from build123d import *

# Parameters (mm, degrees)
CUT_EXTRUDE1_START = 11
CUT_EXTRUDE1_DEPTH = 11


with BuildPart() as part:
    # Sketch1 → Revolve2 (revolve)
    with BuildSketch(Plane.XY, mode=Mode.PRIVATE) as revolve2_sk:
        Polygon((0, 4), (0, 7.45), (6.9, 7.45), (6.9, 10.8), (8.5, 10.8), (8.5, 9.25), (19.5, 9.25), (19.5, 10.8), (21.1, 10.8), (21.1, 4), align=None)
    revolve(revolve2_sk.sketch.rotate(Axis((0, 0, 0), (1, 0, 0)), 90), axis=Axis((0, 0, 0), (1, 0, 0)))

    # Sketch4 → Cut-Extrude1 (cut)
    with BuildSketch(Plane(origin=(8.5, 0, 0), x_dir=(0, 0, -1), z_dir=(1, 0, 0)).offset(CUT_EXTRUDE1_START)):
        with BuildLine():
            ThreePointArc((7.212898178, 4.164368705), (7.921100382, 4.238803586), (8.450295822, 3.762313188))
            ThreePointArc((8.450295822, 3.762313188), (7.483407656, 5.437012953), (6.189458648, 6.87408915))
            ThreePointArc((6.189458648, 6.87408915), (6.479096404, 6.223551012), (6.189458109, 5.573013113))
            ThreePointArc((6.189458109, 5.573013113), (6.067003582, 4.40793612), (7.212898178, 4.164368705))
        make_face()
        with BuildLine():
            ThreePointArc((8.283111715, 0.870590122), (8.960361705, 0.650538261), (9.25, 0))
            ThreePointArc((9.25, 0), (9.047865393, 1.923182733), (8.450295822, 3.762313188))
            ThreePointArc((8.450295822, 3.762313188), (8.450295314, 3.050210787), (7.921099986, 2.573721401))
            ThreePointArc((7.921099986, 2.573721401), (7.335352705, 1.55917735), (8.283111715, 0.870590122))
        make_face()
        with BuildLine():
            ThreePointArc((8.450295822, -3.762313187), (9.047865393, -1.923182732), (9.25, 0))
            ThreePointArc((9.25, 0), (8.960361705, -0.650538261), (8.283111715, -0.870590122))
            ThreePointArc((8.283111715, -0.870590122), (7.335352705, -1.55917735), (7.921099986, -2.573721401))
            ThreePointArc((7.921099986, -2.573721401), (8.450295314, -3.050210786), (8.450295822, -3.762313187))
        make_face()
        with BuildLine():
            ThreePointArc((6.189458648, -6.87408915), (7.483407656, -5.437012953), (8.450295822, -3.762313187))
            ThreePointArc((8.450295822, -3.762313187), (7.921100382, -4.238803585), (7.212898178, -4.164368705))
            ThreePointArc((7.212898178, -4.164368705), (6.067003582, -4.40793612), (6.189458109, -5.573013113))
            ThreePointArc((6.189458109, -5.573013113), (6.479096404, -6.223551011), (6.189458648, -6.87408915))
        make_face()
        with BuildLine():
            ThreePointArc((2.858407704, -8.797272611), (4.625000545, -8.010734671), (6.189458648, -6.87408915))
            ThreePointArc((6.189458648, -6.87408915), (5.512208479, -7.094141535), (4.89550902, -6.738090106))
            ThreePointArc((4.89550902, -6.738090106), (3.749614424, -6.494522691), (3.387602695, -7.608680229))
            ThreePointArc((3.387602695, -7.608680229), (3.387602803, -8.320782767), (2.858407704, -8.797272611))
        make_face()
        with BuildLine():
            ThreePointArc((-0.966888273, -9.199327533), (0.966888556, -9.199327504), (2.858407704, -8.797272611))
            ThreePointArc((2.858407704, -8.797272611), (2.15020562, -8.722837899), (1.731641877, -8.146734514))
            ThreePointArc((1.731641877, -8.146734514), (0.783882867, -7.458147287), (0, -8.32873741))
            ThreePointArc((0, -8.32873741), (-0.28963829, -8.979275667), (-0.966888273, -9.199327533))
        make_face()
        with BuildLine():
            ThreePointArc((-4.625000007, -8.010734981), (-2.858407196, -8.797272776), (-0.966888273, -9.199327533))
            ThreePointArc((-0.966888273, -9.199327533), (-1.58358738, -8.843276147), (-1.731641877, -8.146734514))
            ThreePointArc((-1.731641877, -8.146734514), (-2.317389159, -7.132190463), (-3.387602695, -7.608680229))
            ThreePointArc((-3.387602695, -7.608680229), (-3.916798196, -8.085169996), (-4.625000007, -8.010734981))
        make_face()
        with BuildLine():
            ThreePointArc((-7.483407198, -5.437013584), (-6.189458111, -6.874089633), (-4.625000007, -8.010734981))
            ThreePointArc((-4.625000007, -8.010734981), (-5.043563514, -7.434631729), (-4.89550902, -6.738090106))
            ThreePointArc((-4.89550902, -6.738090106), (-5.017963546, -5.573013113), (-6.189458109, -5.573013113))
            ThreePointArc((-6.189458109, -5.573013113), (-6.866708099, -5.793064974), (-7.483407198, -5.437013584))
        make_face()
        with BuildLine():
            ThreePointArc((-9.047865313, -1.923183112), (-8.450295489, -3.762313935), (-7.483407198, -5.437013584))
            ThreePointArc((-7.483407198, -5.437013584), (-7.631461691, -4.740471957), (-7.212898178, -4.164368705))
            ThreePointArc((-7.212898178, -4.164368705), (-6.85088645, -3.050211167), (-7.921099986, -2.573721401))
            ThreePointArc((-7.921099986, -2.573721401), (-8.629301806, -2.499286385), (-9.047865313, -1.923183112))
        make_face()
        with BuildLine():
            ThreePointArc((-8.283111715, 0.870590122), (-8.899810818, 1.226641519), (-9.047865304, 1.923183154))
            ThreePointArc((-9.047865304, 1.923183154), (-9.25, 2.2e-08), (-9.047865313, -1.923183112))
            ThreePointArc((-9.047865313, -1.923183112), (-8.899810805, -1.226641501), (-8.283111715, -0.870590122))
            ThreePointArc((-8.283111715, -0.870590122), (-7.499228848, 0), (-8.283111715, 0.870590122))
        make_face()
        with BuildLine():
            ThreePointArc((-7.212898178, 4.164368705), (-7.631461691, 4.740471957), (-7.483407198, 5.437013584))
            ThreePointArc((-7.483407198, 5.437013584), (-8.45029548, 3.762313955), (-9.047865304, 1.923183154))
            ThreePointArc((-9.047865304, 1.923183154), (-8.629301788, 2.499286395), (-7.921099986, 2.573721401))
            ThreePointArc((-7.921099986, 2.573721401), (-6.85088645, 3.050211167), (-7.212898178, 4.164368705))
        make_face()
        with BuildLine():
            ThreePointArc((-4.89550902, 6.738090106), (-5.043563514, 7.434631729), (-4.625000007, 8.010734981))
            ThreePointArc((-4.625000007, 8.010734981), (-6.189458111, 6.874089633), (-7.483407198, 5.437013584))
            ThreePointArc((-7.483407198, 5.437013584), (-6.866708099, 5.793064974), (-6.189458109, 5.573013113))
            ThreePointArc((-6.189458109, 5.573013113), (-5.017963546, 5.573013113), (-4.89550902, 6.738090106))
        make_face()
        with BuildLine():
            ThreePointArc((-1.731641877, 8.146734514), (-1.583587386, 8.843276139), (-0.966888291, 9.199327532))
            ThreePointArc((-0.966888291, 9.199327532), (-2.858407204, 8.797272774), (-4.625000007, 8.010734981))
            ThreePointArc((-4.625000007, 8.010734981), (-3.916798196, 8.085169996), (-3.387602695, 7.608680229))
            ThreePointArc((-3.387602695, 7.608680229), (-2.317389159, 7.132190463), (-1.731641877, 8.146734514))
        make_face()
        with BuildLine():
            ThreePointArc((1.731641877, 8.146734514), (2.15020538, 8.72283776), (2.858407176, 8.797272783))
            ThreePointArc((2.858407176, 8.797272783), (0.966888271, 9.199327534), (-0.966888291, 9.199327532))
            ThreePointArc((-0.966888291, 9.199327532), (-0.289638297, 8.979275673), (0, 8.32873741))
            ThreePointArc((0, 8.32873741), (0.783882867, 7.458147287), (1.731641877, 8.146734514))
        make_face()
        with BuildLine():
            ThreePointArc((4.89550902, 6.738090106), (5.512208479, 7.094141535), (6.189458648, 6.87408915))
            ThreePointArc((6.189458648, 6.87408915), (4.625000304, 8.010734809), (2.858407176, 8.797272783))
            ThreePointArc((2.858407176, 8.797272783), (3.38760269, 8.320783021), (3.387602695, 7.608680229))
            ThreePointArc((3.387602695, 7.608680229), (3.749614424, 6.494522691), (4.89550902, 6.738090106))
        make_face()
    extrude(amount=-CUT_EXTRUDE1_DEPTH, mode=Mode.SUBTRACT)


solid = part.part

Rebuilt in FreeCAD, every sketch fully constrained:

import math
import FreeCAD as App
import Part
import Sketcher

V = App.Vector
Q = App.Units.Quantity


def add_polygon(sketch, points):
    """Adds a closed chain of lines whose ends are joined by coincident constraints."""
    first, n = sketch.GeometryCount, len(points)
    for a, b in zip(points, points[1:] + points[:1]):
        sketch.addGeometry(Part.LineSegment(App.Vector(*a, 0), App.Vector(*b, 0)), False)
    for i in range(n):
        sketch.addConstraint(Sketcher.Constraint("Coincident", first + i, 2, first + (i + 1) % n, 1))

doc = App.newDocument("Part")
body = doc.addObject("PartDesign::Body", "Body")

# Sketch on XY plane
sketch1 = doc.addObject("Sketcher::SketchObject", "Sketch")
body.addObject(sketch1)
sketch1.AttachmentSupport = (doc.XY_Plane, [""])
sketch1.MapMode = "FlatFace"
add_polygon(sketch1, [(0, 7.45), (0, 4), (21.1, 4), (21.1, 10.8), (19.5, 10.8), (19.5, 9.25), (8.5, 9.25), (8.5, 10.8), (6.9, 10.8), (6.9, 7.45)])  # lines 0-9
sketch1.addConstraint([
    Sketcher.Constraint("Vertical", 0),
    Sketcher.Constraint("Horizontal", 1),
    Sketcher.Constraint("Vertical", 2),
    Sketcher.Constraint("Horizontal", 3),
    Sketcher.Constraint("Vertical", 4),
    Sketcher.Constraint("Horizontal", 5),
    Sketcher.Constraint("Vertical", 6),
    Sketcher.Constraint("Horizontal", 7),
    Sketcher.Constraint("Vertical", 8),
    Sketcher.Constraint("Horizontal", 9),
    Sketcher.Constraint("PointOnObject", 0, 2, -2),
    Sketcher.Constraint("Horizontal", 3, 2, 6, 2),
    Sketcher.Constraint("Equal", 3, 7),
    Sketcher.Constraint("DistanceX", 5, 2, 5, 1, Q("11 mm")),
    Sketcher.Constraint("DistanceX", 1, 1, 1, 2, Q("21.1 mm")),
    Sketcher.Constraint("DistanceX", 3, 2, 3, 1, Q("1.6 mm")),
    Sketcher.Constraint("DistanceY", 2, 1, 2, 2, Q("6.8 mm")),
    Sketcher.Constraint("DistanceY", -1, 1, 0, 2, Q("4 mm")),
    Sketcher.Constraint("DistanceY", 0, 2, 0, 1, Q("3.45 mm")),
    Sketcher.Constraint("DistanceY", 4, 2, 4, 1, Q("1.55 mm")),
])
revolution = doc.addObject("PartDesign::Revolution", "Revolution")
body.addObject(revolution)
revolution.Profile = sketch1
revolution.ReferenceAxis = (sketch1, ["H_Axis"])
revolution.Angle = 360

# Sketch on YZ plane
sketch2 = doc.addObject("Sketcher::SketchObject", "Sketch001")
body.addObject(sketch2)
sketch2.AttachmentSupport = (doc.YZ_Plane, [""])
sketch2.MapMode = "FlatFace"
sketch2.AttachmentOffset = App.Placement(V(0, 0, 19.5), App.Rotation())
sketch2.addGeometry([
    Part.ArcOfCircle(Part.Circle(V(3.406263, -7.650591, 0), V(0, 0, 1), 0.875386), math.radians(-66.000055), math.radians(30)),  # 0
    Part.ArcOfCircle(Part.Circle(V(0, 0, 0), V(0, 0, 1), 9.25), math.radians(-66.000005), math.radians(-42.000005)),  # 1
    Part.ArcOfCircle(Part.Circle(V(6.223551, -5.603711, 0), V(0, 0, 1), 0.875386), math.radians(-138), math.radians(-42.000047)),  # 2
    Part.ArcOfCircle(Part.Circle(V(4.922475, -6.775205, 0), V(0, 0, 1), 0.875386), math.radians(42), math.radians(210)),  # 3
    Part.ArcOfCircle(Part.Circle(V(0, -8.374614, 0), V(0, 0, 1), 0.875386), math.radians(-90), math.radians(6)),  # 4
    Part.ArcOfCircle(Part.Circle(V(0, 0, 0), V(0, 0, 1), 9.25), math.radians(-90), math.radians(-66.000005)),  # 5
    Part.ArcOfCircle(Part.Circle(V(3.406263, -7.650591, 0), V(0, 0, 1), 0.875386), math.radians(-162), math.radians(-66.000055)),  # 6
    Part.ArcOfCircle(Part.Circle(V(1.74118, -8.191609, 0), V(0, 0, 1), 0.875386), math.radians(18), math.radians(186)),  # 7
    Part.ArcOfCircle(Part.Circle(V(0, 0, 0), V(0, 0, 1), 9.25), math.radians(-113.999995), math.radians(-90)),  # 8
    Part.ArcOfCircle(Part.Circle(V(0, -8.374614, 0), V(0, 0, 1), 0.875386), math.radians(174), math.radians(270)),  # 9
    Part.ArcOfCircle(Part.Circle(V(-1.74118, -8.191609, 0), V(0, 0, 1), 0.875386), math.radians(-6), math.radians(162)),  # 10
    Part.ArcOfCircle(Part.Circle(V(-3.406263, -7.650591, 0), V(0, 0, 1), 0.875386), math.radians(-113.999946), math.radians(-18)),  # 11
    Part.ArcOfCircle(Part.Circle(V(0, 0, 0), V(0, 0, 1), 9.25), math.radians(-137.999996), math.radians(-113.999995)),  # 12
    Part.ArcOfCircle(Part.Circle(V(-3.406263, -7.650591, 0), V(0, 0, 1), 0.875386), math.radians(150), math.radians(246.000054)),  # 13
    Part.ArcOfCircle(Part.Circle(V(-4.922475, -6.775205, 0), V(0, 0, 1), 0.875386), math.radians(-30), math.radians(138)),  # 14
    Part.ArcOfCircle(Part.Circle(V(-6.223551, -5.603711, 0), V(0, 0, 1), 0.875386), math.radians(-137.999953), math.radians(-42)),  # 15
    Part.ArcOfCircle(Part.Circle(V(0, 0, 0), V(0, 0, 1), 9.25), math.radians(-161.999997), math.radians(-137.999995)),  # 16
    Part.ArcOfCircle(Part.Circle(V(-6.223551, -5.603711, 0), V(0, 0, 1), 0.875386), math.radians(126), math.radians(222.000048)),  # 17
    Part.ArcOfCircle(Part.Circle(V(-7.252629, -4.187307, 0), V(0, 0, 1), 0.875386), math.radians(-54), math.radians(114)),  # 18
    Part.ArcOfCircle(Part.Circle(V(-7.964732, -2.587898, 0), V(0, 0, 1), 0.875386), math.radians(-161.999965), math.radians(-66)),  # 19
    Part.ArcOfCircle(Part.Circle(V(0, 0, 0), V(0, 0, 1), 9.25), math.radians(174), math.radians(198.000003)),  # 20
    Part.ArcOfCircle(Part.Circle(V(-7.964732, -2.587898, 0), V(0, 0, 1), 0.875386), math.radians(102), math.radians(198.000035)),  # 21
    Part.ArcOfCircle(Part.Circle(V(-8.328737, -0.875386, 0), V(0, 0, 1), 0.875386), math.radians(-78), math.radians(90)),  # 22
    Part.ArcOfCircle(Part.Circle(V(-8.328737, 0.875386, 0), V(0, 0, 1), 0.875386), math.radians(174.000001), math.radians(270)),  # 23
    Part.ArcOfCircle(Part.Circle(V(0, 0, 0), V(0, 0, 1), 9.25), math.radians(150), math.radians(174)),  # 24
    Part.ArcOfCircle(Part.Circle(V(-8.328737, 0.875386, 0), V(0, 0, 1), 0.875386), math.radians(78), math.radians(174.000001)),  # 25
    Part.ArcOfCircle(Part.Circle(V(-7.964732, 2.587898, 0), V(0, 0, 1), 0.875386), math.radians(-102), math.radians(66)),  # 26
    Part.ArcOfCircle(Part.Circle(V(-7.252629, 4.187307, 0), V(0, 0, 1), 0.875386), math.radians(149.999999), math.radians(246)),  # 27
    Part.ArcOfCircle(Part.Circle(V(0, 0, 0), V(0, 0, 1), 9.25), math.radians(126), math.radians(150)),  # 28
    Part.ArcOfCircle(Part.Circle(V(-7.252629, 4.187307, 0), V(0, 0, 1), 0.875386), math.radians(54), math.radians(149.999999)),  # 29
    Part.ArcOfCircle(Part.Circle(V(-6.223551, 5.603711, 0), V(0, 0, 1), 0.875386), math.radians(-126), math.radians(42)),  # 30
    Part.ArcOfCircle(Part.Circle(V(-4.922475, 6.775205, 0), V(0, 0, 1), 0.875386), math.radians(126), math.radians(222)),  # 31
    Part.ArcOfCircle(Part.Circle(V(0, 0, 0), V(0, 0, 1), 9.25), math.radians(102), math.radians(126)),  # 32
    Part.ArcOfCircle(Part.Circle(V(-4.922475, 6.775205, 0), V(0, 0, 1), 0.875386), math.radians(30), math.radians(126)),  # 33
    Part.ArcOfCircle(Part.Circle(V(-3.406263, 7.650591, 0), V(0, 0, 1), 0.875386), math.radians(-150), math.radians(18)),  # 34
    Part.ArcOfCircle(Part.Circle(V(-1.74118, 8.191609, 0), V(0, 0, 1), 0.875386), math.radians(101.999998), math.radians(198)),  # 35
    Part.ArcOfCircle(Part.Circle(V(1.74118, 8.191609, 0), V(0, 0, 1), 0.875386), math.radians(77.999999), math.radians(174)),  # 36
    Part.ArcOfCircle(Part.Circle(V(0, 0, 0), V(0, 0, 1), 9.25), math.radians(78), math.radians(102)),  # 37
    Part.ArcOfCircle(Part.Circle(V(-1.74118, 8.191609, 0), V(0, 0, 1), 0.875386), math.radians(6), math.radians(101.999998)),  # 38
    Part.ArcOfCircle(Part.Circle(V(0, 8.374614, 0), V(0, 0, 1), 0.875386), math.radians(-174), math.radians(-6)),  # 39
    Part.ArcOfCircle(Part.Circle(V(4.922475, 6.775205, 0), V(0, 0, 1), 0.875386), math.radians(54), math.radians(150)),  # 40
    Part.ArcOfCircle(Part.Circle(V(0, 0, 0), V(0, 0, 1), 9.25), math.radians(54), math.radians(78)),  # 41
    Part.ArcOfCircle(Part.Circle(V(1.74118, 8.191609, 0), V(0, 0, 1), 0.875386), math.radians(-18), math.radians(77.999999)),  # 42
    Part.ArcOfCircle(Part.Circle(V(3.406263, 7.650591, 0), V(0, 0, 1), 0.875386), math.radians(162), math.radians(330)),  # 43
    Part.ArcOfCircle(Part.Circle(V(7.252629, 4.187307, 0), V(0, 0, 1), 0.875386), math.radians(30.000001), math.radians(126)),  # 44
    Part.ArcOfCircle(Part.Circle(V(0, 0, 0), V(0, 0, 1), 9.25), math.radians(30), math.radians(54)),  # 45
    Part.ArcOfCircle(Part.Circle(V(4.922475, 6.775205, 0), V(0, 0, 1), 0.875386), math.radians(-42), math.radians(54)),  # 46
    Part.ArcOfCircle(Part.Circle(V(6.223551, 5.603711, 0), V(0, 0, 1), 0.875386), math.radians(138), math.radians(306)),  # 47
    Part.ArcOfCircle(Part.Circle(V(8.328737, 0.875386, 0), V(0, 0, 1), 0.875386), math.radians(6), math.radians(102)),  # 48
    Part.ArcOfCircle(Part.Circle(V(0, 0, 0), V(0, 0, 1), 9.25), math.radians(6), math.radians(30)),  # 49
    Part.ArcOfCircle(Part.Circle(V(7.252629, 4.187307, 0), V(0, 0, 1), 0.875386), math.radians(-66), math.radians(30.000001)),  # 50
    Part.ArcOfCircle(Part.Circle(V(7.964732, 2.587898, 0), V(0, 0, 1), 0.875386), math.radians(114), math.radians(282)),  # 51
    Part.ArcOfCircle(Part.Circle(V(7.964732, -2.587898, 0), V(0, 0, 1), 0.875386), math.radians(-17.999998), math.radians(78)),  # 52
    Part.ArcOfCircle(Part.Circle(V(0, 0, 0), V(0, 0, 1), 9.25), math.radians(-18), math.radians(6)),  # 53
    Part.ArcOfCircle(Part.Circle(V(8.328737, 0.875386, 0), V(0, 0, 1), 0.875386), math.radians(-90), math.radians(6)),  # 54
    Part.ArcOfCircle(Part.Circle(V(8.328737, -0.875386, 0), V(0, 0, 1), 0.875386), math.radians(90), math.radians(258)),  # 55
    Part.ArcOfCircle(Part.Circle(V(6.223551, -5.603711, 0), V(0, 0, 1), 0.875386), math.radians(-42.000048), math.radians(54)),  # 56
    Part.ArcOfCircle(Part.Circle(V(0, 0, 0), V(0, 0, 1), 9.25), math.radians(-42.000004), math.radians(-18)),  # 57
    Part.ArcOfCircle(Part.Circle(V(7.964732, -2.587898, 0), V(0, 0, 1), 0.875386), math.radians(-114), math.radians(-17.999998)),  # 58
    Part.ArcOfCircle(Part.Circle(V(7.252629, -4.187307, 0), V(0, 0, 1), 0.875386), math.radians(66), math.radians(234)),  # 59
], False)
sketch2.addConstraint([
    Sketcher.Constraint("Tangent", 0, 1, 1, 1),
    Sketcher.Constraint("Tangent", 1, 2, 2, 2),
    Sketcher.Constraint("Tangent", 2, 1, 3, 1),
    Sketcher.Constraint("Tangent", 3, 2, 0, 2),
    Sketcher.Constraint("Tangent", 4, 1, 5, 1),
    Sketcher.Constraint("Tangent", 5, 2, 6, 2),
    Sketcher.Constraint("Tangent", 6, 1, 7, 1),
    Sketcher.Constraint("Tangent", 7, 2, 4, 2),
    Sketcher.Constraint("Tangent", 8, 2, 9, 2),
    Sketcher.Constraint("Tangent", 9, 1, 10, 1),
    Sketcher.Constraint("Tangent", 10, 2, 11, 2),
    Sketcher.Constraint("Tangent", 11, 1, 8, 1),
    Sketcher.Constraint("Tangent", 12, 2, 13, 2),
    Sketcher.Constraint("Tangent", 13, 1, 14, 1),
    Sketcher.Constraint("Tangent", 14, 2, 15, 2),
    Sketcher.Constraint("Tangent", 15, 1, 12, 1),
    Sketcher.Constraint("Tangent", 16, 2, 17, 2),
    Sketcher.Constraint("Tangent", 17, 1, 18, 1),
    Sketcher.Constraint("Tangent", 18, 2, 19, 2),
    Sketcher.Constraint("Tangent", 19, 1, 16, 1),
    Sketcher.Constraint("Tangent", 20, 2, 21, 2),
    Sketcher.Constraint("Tangent", 21, 1, 22, 1),
    Sketcher.Constraint("Tangent", 22, 2, 23, 2),
    Sketcher.Constraint("Tangent", 23, 1, 20, 1),
    Sketcher.Constraint("Tangent", 24, 2, 25, 2),
    Sketcher.Constraint("Tangent", 25, 1, 26, 1),
    Sketcher.Constraint("Tangent", 26, 2, 27, 2),
    Sketcher.Constraint("Tangent", 27, 1, 24, 1),
    Sketcher.Constraint("Tangent", 28, 2, 29, 2),
    Sketcher.Constraint("Tangent", 29, 1, 30, 1),
    Sketcher.Constraint("Tangent", 30, 2, 31, 2),
    Sketcher.Constraint("Tangent", 31, 1, 28, 1),
    Sketcher.Constraint("Tangent", 32, 2, 33, 2),
    Sketcher.Constraint("Tangent", 33, 1, 34, 1),
    Sketcher.Constraint("Tangent", 34, 2, 35, 2),
    Sketcher.Constraint("Tangent", 35, 1, 32, 1),
    Sketcher.Constraint("Tangent", 36, 1, 37, 1),
    Sketcher.Constraint("Tangent", 37, 2, 38, 2),
    Sketcher.Constraint("Tangent", 38, 1, 39, 1),
    Sketcher.Constraint("Tangent", 39, 2, 36, 2),
    Sketcher.Constraint("Tangent", 40, 1, 41, 1),
    Sketcher.Constraint("Tangent", 41, 2, 42, 2),
    Sketcher.Constraint("Tangent", 42, 1, 43, 1),
    Sketcher.Constraint("Tangent", 43, 2, 40, 2),
    Sketcher.Constraint("Tangent", 44, 1, 45, 1),
    Sketcher.Constraint("Tangent", 45, 2, 46, 2),
    Sketcher.Constraint("Tangent", 46, 1, 47, 1),
    Sketcher.Constraint("Tangent", 47, 2, 44, 2),
    Sketcher.Constraint("Tangent", 48, 1, 49, 1),
    Sketcher.Constraint("Tangent", 49, 2, 50, 2),
    Sketcher.Constraint("Tangent", 50, 1, 51, 1),
    Sketcher.Constraint("Tangent", 51, 2, 48, 2),
    Sketcher.Constraint("Tangent", 52, 1, 53, 1),
    Sketcher.Constraint("Tangent", 53, 2, 54, 2),
    Sketcher.Constraint("Tangent", 54, 1, 55, 1),
    Sketcher.Constraint("Tangent", 55, 2, 52, 2),
    Sketcher.Constraint("Tangent", 56, 1, 57, 1),
    Sketcher.Constraint("Tangent", 57, 2, 58, 2),
    Sketcher.Constraint("Tangent", 58, 1, 59, 1),
    Sketcher.Constraint("Tangent", 59, 2, 56, 2),
    Sketcher.Constraint("Coincident", 1, 3, -1, 1),
    Sketcher.Constraint("Coincident", 5, 3, -1, 1),
    Sketcher.Constraint("Coincident", 8, 3, -1, 1),
    Sketcher.Constraint("Coincident", 12, 3, -1, 1),
    Sketcher.Constraint("Coincident", 16, 3, -1, 1),
    Sketcher.Constraint("Coincident", 20, 3, -1, 1),
    Sketcher.Constraint("Coincident", 24, 3, -1, 1),
    Sketcher.Constraint("Coincident", 28, 3, -1, 1),
    Sketcher.Constraint("Coincident", 32, 3, -1, 1),
    Sketcher.Constraint("Coincident", 37, 3, -1, 1),
    Sketcher.Constraint("Coincident", 41, 3, -1, 1),
    Sketcher.Constraint("Coincident", 45, 3, -1, 1),
    Sketcher.Constraint("Coincident", 49, 3, -1, 1),
    Sketcher.Constraint("Coincident", 53, 3, -1, 1),
    Sketcher.Constraint("Coincident", 57, 3, -1, 1),
    Sketcher.Constraint("Coincident", 6, 3, 0, 3),
    Sketcher.Constraint("Coincident", 9, 3, 4, 3),
    Sketcher.Constraint("Coincident", 13, 3, 11, 3),
    Sketcher.Constraint("Coincident", 17, 3, 15, 3),
    Sketcher.Constraint("Coincident", 21, 3, 19, 3),
    Sketcher.Constraint("Coincident", 25, 3, 23, 3),
    Sketcher.Constraint("Coincident", 29, 3, 27, 3),
    Sketcher.Constraint("Coincident", 33, 3, 31, 3),
    Sketcher.Constraint("Coincident", 38, 3, 35, 3),
    Sketcher.Constraint("Coincident", 42, 3, 36, 3),
    Sketcher.Constraint("Coincident", 46, 3, 40, 3),
    Sketcher.Constraint("Coincident", 50, 3, 44, 3),
    Sketcher.Constraint("Coincident", 54, 3, 48, 3),
    Sketcher.Constraint("Coincident", 56, 3, 2, 3),
    Sketcher.Constraint("Coincident", 58, 3, 52, 3),
    Sketcher.Constraint("Equal", 0, 2),
    Sketcher.Constraint("Equal", 2, 3),
    Sketcher.Constraint("Equal", 3, 4),
    Sketcher.Constraint("Equal", 1, 5),
    Sketcher.Constraint("Equal", 6, 7),
    Sketcher.Constraint("Equal", 5, 8),
    Sketcher.Constraint("Equal", 9, 10),
    Sketcher.Constraint("Equal", 10, 11),
    Sketcher.Constraint("Equal", 8, 12),
    Sketcher.Constraint("Equal", 13, 14),
    Sketcher.Constraint("Equal", 14, 15),
    Sketcher.Constraint("Equal", 12, 16),
    Sketcher.Constraint("Equal", 17, 18),
    Sketcher.Constraint("Equal", 18, 19),
    Sketcher.Constraint("Equal", 16, 20),
    Sketcher.Constraint("Equal", 21, 22),
    Sketcher.Constraint("Equal", 22, 23),
    Sketcher.Constraint("Equal", 20, 24),
    Sketcher.Constraint("Equal", 25, 26),
    Sketcher.Constraint("Equal", 26, 27),
    Sketcher.Constraint("Equal", 24, 28),
    Sketcher.Constraint("Equal", 29, 30),
    Sketcher.Constraint("Equal", 30, 31),
    Sketcher.Constraint("Equal", 28, 32),
    Sketcher.Constraint("Equal", 33, 34),
    Sketcher.Constraint("Equal", 34, 35),
    Sketcher.Constraint("Equal", 35, 36),
    Sketcher.Constraint("Equal", 32, 37),
    Sketcher.Constraint("Equal", 38, 39),
    Sketcher.Constraint("Equal", 39, 40),
    Sketcher.Constraint("Equal", 37, 41),
    Sketcher.Constraint("Equal", 42, 43),
    Sketcher.Constraint("Equal", 43, 44),
    Sketcher.Constraint("Equal", 41, 45),
    Sketcher.Constraint("Equal", 46, 47),
    Sketcher.Constraint("Equal", 47, 48),
    Sketcher.Constraint("Equal", 45, 49),
    Sketcher.Constraint("Equal", 50, 51),
    Sketcher.Constraint("Equal", 51, 52),
    Sketcher.Constraint("Equal", 49, 53),
    Sketcher.Constraint("Equal", 54, 55),
    Sketcher.Constraint("Equal", 55, 56),
    Sketcher.Constraint("Equal", 58, 59),
    Sketcher.Constraint("Symmetric", 2, 3, 30, 3, -1, 1),
    Sketcher.Constraint("Symmetric", 0, 3, 34, 3, -1, 1),
    Sketcher.Constraint("Symmetric", 10, 3, 36, 3, -1, 1),
    Sketcher.Constraint("Symmetric", 14, 3, 40, 3, -1, 1),
    Sketcher.Constraint("Symmetric", 18, 3, 44, 3, -1, 1),
    Sketcher.Constraint("Symmetric", 22, 3, 48, 3, -1, 1),
    Sketcher.Constraint("Symmetric", 26, 3, 52, 3, -1, 1),
    Sketcher.Constraint("Symmetric", 7, 3, 10, 3, -2),
    Sketcher.Constraint("Radius", 1, Q("9.25 mm")),
])
pocket1 = doc.addObject("PartDesign::Pocket", "Pocket")
body.addObject(pocket1)
pocket1.Profile = sketch2
pocket1.Length = 11

doc.recompute()
